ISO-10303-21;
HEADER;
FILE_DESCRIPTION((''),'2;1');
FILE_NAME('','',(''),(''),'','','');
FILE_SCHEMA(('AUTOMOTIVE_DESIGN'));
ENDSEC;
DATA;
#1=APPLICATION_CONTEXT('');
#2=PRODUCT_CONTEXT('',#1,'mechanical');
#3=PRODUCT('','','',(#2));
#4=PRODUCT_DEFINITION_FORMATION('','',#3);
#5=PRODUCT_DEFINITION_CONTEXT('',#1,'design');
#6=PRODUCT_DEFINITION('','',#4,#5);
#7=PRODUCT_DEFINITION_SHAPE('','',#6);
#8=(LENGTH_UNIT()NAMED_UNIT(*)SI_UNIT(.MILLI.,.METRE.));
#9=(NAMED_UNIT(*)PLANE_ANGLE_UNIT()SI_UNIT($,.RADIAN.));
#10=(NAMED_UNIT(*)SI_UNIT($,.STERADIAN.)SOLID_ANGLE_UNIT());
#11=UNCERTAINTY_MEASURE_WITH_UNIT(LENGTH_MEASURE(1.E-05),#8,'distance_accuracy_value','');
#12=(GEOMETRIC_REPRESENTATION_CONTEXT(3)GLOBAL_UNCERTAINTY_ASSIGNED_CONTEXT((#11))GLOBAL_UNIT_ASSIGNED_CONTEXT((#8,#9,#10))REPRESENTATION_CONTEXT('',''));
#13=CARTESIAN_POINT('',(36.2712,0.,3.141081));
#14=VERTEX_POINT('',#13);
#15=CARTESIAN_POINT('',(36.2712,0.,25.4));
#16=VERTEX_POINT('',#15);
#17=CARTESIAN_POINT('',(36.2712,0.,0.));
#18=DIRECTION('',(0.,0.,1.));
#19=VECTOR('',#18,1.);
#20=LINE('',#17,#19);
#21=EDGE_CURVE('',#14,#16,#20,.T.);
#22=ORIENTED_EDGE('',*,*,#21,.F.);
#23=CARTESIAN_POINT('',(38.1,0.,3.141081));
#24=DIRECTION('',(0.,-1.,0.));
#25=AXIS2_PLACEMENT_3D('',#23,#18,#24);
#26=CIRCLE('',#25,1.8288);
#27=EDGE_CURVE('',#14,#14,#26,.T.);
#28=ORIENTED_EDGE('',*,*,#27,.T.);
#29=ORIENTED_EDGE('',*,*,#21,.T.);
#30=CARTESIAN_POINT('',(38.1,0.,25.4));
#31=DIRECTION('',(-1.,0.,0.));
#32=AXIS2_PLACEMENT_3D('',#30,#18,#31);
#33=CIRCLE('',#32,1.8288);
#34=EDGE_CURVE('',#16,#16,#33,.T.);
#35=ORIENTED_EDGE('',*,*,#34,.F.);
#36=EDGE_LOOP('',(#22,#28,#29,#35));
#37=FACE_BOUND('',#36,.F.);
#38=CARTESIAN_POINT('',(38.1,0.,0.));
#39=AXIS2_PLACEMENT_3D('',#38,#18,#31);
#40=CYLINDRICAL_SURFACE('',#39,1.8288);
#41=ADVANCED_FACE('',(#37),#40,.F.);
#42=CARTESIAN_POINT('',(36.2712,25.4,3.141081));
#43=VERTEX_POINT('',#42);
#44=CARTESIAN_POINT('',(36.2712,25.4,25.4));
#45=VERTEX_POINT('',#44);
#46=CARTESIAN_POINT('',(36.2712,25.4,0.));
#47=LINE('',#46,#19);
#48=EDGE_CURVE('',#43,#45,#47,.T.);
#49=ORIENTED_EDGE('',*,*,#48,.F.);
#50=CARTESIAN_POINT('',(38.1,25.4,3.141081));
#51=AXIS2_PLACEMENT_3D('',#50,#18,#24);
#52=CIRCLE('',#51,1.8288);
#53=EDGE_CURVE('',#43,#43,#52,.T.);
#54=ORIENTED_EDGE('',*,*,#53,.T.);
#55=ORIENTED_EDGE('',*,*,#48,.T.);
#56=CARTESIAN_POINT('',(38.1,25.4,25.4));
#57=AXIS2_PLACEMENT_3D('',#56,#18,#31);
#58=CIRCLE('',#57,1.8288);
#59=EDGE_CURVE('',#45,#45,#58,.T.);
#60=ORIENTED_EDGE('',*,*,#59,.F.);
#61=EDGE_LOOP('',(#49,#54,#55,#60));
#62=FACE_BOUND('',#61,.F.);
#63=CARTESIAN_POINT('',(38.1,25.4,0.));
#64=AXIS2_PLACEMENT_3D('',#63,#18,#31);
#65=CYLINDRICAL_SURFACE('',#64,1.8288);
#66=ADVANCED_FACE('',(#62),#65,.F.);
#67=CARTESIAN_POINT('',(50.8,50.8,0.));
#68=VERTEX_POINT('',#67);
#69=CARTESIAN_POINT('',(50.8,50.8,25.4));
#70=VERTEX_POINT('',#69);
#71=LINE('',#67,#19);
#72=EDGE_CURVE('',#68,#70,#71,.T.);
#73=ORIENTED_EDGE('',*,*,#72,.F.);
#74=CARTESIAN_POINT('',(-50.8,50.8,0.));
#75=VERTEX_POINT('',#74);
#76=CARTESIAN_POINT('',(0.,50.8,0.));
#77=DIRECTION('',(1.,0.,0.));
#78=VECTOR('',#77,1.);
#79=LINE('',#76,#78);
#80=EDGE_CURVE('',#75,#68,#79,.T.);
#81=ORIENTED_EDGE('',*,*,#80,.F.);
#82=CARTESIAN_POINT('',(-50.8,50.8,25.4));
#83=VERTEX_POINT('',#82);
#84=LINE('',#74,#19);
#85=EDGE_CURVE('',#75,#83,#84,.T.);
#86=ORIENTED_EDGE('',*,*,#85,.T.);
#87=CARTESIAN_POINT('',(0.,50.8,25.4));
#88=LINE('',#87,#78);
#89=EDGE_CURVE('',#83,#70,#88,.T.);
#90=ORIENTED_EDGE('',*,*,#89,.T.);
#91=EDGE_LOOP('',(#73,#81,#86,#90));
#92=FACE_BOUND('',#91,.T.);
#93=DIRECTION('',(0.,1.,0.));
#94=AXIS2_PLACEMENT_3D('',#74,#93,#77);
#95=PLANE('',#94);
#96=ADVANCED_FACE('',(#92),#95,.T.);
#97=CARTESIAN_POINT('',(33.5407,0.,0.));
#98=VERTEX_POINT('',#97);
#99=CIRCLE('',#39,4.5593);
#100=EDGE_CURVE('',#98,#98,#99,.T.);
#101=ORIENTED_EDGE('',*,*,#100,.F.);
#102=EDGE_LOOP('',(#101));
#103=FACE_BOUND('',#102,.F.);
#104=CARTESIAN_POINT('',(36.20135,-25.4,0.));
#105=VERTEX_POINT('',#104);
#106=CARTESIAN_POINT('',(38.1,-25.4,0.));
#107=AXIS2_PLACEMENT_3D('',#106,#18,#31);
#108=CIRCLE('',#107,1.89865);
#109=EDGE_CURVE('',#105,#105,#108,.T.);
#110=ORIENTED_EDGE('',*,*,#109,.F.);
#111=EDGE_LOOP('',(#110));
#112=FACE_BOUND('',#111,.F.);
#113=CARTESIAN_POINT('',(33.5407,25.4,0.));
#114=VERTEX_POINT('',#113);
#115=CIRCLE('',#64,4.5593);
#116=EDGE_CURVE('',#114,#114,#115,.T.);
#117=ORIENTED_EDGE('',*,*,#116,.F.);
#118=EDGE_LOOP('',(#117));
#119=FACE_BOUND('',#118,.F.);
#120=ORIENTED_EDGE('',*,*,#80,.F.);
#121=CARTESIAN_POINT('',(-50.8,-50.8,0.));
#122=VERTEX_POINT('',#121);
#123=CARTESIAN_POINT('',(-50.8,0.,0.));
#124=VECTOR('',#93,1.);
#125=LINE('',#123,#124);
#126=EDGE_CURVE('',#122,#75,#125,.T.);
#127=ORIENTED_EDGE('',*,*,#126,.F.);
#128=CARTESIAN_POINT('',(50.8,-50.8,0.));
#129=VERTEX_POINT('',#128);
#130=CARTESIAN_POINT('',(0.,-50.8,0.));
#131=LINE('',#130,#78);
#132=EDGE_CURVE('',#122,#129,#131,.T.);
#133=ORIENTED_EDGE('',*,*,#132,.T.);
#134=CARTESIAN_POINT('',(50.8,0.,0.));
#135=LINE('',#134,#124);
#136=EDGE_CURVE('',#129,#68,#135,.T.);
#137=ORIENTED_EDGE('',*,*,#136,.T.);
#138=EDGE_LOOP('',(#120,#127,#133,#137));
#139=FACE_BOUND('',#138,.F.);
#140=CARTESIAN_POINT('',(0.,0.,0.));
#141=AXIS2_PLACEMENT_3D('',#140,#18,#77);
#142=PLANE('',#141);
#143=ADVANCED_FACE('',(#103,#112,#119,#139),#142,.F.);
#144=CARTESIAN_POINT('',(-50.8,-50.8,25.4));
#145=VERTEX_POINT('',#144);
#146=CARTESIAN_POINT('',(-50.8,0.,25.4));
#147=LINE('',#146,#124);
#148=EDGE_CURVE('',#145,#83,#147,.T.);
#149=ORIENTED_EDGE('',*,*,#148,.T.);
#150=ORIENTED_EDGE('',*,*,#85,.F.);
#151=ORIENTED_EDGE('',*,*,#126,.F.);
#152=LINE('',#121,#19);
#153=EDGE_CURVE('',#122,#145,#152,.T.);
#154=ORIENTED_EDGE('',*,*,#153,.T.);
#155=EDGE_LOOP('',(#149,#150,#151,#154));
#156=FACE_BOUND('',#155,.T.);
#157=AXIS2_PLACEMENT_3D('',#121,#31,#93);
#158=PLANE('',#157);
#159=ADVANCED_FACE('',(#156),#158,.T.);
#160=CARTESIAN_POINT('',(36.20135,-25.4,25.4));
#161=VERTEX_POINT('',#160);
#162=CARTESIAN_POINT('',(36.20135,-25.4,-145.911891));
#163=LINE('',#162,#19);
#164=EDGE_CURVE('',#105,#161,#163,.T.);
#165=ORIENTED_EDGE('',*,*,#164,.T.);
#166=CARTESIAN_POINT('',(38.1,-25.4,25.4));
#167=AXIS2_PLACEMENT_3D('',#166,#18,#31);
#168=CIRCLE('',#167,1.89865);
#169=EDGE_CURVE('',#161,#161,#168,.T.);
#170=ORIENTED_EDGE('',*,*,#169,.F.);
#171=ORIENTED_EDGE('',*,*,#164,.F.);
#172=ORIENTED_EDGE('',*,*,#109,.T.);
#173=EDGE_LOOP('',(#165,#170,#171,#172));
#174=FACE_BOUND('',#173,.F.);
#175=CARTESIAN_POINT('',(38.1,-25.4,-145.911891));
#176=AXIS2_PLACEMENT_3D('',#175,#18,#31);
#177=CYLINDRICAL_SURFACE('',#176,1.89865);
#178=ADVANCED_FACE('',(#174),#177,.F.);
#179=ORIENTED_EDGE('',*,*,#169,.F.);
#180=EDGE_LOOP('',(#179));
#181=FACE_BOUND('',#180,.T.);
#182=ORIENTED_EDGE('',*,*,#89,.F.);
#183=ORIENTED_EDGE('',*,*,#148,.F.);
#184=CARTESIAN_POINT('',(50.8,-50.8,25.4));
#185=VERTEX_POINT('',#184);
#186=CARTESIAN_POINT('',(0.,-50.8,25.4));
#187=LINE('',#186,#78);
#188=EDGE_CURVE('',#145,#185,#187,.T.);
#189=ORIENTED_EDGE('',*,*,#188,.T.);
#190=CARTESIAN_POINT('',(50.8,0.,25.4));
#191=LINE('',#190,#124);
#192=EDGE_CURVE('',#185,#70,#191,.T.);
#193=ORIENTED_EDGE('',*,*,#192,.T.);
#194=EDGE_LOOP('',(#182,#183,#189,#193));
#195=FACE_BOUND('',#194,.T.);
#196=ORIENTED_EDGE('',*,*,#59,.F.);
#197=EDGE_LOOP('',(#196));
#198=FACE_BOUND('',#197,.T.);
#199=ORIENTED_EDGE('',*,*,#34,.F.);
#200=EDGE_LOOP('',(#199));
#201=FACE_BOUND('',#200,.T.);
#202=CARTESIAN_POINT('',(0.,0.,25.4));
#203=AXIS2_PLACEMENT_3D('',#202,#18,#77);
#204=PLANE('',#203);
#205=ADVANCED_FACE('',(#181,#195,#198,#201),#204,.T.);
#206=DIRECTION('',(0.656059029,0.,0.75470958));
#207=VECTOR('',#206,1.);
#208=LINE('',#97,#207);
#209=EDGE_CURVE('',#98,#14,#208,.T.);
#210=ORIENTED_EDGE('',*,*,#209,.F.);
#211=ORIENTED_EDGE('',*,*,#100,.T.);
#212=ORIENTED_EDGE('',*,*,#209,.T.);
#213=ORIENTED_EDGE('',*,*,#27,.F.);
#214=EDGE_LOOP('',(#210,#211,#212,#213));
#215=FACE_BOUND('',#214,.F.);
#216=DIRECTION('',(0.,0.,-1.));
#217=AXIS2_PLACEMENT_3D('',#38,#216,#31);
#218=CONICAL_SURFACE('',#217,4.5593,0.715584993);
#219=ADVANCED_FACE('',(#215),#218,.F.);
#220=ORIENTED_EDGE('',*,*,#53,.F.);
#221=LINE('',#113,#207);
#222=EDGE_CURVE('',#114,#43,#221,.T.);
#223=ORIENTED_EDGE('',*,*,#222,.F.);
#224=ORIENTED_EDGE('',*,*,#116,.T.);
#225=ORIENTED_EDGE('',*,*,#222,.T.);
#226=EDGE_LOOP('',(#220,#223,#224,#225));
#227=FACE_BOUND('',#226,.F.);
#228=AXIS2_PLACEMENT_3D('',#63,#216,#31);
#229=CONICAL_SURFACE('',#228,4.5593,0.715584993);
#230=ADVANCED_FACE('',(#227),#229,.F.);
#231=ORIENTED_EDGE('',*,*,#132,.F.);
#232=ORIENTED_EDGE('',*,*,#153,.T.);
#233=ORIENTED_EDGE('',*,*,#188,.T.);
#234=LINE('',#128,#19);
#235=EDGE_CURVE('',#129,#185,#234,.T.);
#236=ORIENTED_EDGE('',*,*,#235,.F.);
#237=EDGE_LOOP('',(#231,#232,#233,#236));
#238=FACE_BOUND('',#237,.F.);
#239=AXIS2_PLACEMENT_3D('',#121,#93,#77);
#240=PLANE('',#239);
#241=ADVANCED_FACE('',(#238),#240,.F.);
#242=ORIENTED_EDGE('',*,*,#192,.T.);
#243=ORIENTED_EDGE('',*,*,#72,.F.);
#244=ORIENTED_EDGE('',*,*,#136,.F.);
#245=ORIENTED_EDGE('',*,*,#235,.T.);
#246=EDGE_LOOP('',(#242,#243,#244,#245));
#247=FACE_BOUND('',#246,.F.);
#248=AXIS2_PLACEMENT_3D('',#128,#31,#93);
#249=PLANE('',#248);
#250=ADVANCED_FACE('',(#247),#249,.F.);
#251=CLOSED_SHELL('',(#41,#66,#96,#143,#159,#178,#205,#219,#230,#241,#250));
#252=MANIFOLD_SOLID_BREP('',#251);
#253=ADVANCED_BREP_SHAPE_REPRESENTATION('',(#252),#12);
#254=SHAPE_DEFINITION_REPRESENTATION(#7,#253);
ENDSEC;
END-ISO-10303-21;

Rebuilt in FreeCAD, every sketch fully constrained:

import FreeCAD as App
import Part
import Sketcher

V = App.Vector
Q = App.Units.Quantity

doc = App.newDocument("Part")
body = doc.addObject("PartDesign::Body", "Body")

sketch1 = body.newObject("Sketcher::SketchObject", "Sketch")
sketch1.AttachmentSupport = (doc.getObject("XY_Plane"), [""])
sketch1.MapMode = "FlatFace"
sketch1.addGeometry(Part.LineSegment(V(-50.8, 50.8, 0), V(-50.8, -50.8, 0)), False)
sketch1.addGeometry(Part.LineSegment(V(-50.8, -50.8, 0), V(50.8, -50.8, 0)), False)
sketch1.addGeometry(Part.LineSegment(V(50.8, -50.8, 0), V(50.8, 50.8, 0)), False)
sketch1.addGeometry(Part.LineSegment(V(50.8, 50.8, 0), V(-50.8, 50.8, 0)), False)
sketch1.addConstraint(Sketcher.Constraint("Coincident", 0, 2, 1, 1))
sketch1.addConstraint(Sketcher.Constraint("Coincident", 1, 2, 2, 1))
sketch1.addConstraint(Sketcher.Constraint("Coincident", 2, 2, 3, 1))
sketch1.addConstraint(Sketcher.Constraint("Coincident", 3, 2, 0, 1))
sketch1.addConstraint(Sketcher.Constraint("Vertical", 0))
sketch1.addConstraint(Sketcher.Constraint("Horizontal", 1))
sketch1.addConstraint(Sketcher.Constraint("Vertical", 2))
sketch1.addConstraint(Sketcher.Constraint("Horizontal", 3))
sketch1.addConstraint(Sketcher.Constraint("Symmetric", 0, 2, 2, 2, -1, 1))
sketch1.addConstraint(Sketcher.Constraint("Equal", 3, 0))
sketch1.addConstraint(Sketcher.Constraint("DistanceX", 1, 1, 1, 2, Q("4 in")))
pad1 = body.newObject("PartDesign::Pad", "Pad")
pad1.Profile = sketch1
pad1.Length = Q("1 in")

sketch2 = body.newObject("Sketcher::SketchObject", "Sketch001")
sketch2.AttachmentSupport = (doc.getObject("XY_Plane"), [""])
sketch2.MapMode = "FlatFace"
sketch2.addGeometry(Part.Circle(V(38.1, -25.4, 0), V(0, 0, 1), 1.89865), False)
sketch2.addConstraint(Sketcher.Constraint("DistanceY", 0, 3, -1, 1, Q("1 in")))
sketch2.addConstraint(Sketcher.Constraint("Diameter", 0, Q("0.1495 in")))
sketch2.addConstraint(Sketcher.Constraint("DistanceX", -1, 1, 0, 3, Q("1.5 in")))
doc.recompute()
hole = body.newObject("PartDesign::Hole", "Hole")
hole.Profile = sketch2
hole.ThreadType = "None"
hole.Diameter = Q("0.1495 in")
hole.DepthType = "ThroughAll"
hole.Reversed = True

sketch3 = body.newObject("Sketcher::SketchObject", "Sketch002")
sketch3.AttachmentSupport = (doc.getObject("XY_Plane"), [""])
sketch3.MapMode = "FlatFace"
sketch3.addGeometry(Part.Circle(V(38.1, 0, 0), V(0, 0, 1), 1.8288), False)
sketch3.addGeometry(Part.Circle(V(38.1, 25.4, 0), V(0, 0, 1), 1.8288), False)
sketch3.addConstraint(Sketcher.Constraint("Equal", 0, 1))
sketch3.addConstraint(Sketcher.Constraint("PointOnObject", 0, 3, -1))
sketch3.addConstraint(Sketcher.Constraint("Vertical", 0, 3, 1, 3))
sketch3.addConstraint(Sketcher.Constraint("Diameter", 0, Q("0.144 in")))
sketch3.addConstraint(Sketcher.Constraint("DistanceY", -1, 1, 1, 3, Q("1 in")))
sketch3.addConstraint(Sketcher.Constraint("DistanceX", -1, 1, 0, 3, Q("1.5 in")))
doc.recompute()
hole2 = body.newObject("PartDesign::Hole", "Hole001")
hole2.Profile = sketch3
hole2.ThreadType = "None"
hole2.Diameter = Q("0.144 in")
hole2.DepthType = "ThroughAll"
hole2.HoleCutType = "Countersink"
hole2.HoleCutDiameter = Q("0.359 in")
hole2.HoleCutCountersinkAngle = 82
hole2.Reversed = True

doc.recompute()
